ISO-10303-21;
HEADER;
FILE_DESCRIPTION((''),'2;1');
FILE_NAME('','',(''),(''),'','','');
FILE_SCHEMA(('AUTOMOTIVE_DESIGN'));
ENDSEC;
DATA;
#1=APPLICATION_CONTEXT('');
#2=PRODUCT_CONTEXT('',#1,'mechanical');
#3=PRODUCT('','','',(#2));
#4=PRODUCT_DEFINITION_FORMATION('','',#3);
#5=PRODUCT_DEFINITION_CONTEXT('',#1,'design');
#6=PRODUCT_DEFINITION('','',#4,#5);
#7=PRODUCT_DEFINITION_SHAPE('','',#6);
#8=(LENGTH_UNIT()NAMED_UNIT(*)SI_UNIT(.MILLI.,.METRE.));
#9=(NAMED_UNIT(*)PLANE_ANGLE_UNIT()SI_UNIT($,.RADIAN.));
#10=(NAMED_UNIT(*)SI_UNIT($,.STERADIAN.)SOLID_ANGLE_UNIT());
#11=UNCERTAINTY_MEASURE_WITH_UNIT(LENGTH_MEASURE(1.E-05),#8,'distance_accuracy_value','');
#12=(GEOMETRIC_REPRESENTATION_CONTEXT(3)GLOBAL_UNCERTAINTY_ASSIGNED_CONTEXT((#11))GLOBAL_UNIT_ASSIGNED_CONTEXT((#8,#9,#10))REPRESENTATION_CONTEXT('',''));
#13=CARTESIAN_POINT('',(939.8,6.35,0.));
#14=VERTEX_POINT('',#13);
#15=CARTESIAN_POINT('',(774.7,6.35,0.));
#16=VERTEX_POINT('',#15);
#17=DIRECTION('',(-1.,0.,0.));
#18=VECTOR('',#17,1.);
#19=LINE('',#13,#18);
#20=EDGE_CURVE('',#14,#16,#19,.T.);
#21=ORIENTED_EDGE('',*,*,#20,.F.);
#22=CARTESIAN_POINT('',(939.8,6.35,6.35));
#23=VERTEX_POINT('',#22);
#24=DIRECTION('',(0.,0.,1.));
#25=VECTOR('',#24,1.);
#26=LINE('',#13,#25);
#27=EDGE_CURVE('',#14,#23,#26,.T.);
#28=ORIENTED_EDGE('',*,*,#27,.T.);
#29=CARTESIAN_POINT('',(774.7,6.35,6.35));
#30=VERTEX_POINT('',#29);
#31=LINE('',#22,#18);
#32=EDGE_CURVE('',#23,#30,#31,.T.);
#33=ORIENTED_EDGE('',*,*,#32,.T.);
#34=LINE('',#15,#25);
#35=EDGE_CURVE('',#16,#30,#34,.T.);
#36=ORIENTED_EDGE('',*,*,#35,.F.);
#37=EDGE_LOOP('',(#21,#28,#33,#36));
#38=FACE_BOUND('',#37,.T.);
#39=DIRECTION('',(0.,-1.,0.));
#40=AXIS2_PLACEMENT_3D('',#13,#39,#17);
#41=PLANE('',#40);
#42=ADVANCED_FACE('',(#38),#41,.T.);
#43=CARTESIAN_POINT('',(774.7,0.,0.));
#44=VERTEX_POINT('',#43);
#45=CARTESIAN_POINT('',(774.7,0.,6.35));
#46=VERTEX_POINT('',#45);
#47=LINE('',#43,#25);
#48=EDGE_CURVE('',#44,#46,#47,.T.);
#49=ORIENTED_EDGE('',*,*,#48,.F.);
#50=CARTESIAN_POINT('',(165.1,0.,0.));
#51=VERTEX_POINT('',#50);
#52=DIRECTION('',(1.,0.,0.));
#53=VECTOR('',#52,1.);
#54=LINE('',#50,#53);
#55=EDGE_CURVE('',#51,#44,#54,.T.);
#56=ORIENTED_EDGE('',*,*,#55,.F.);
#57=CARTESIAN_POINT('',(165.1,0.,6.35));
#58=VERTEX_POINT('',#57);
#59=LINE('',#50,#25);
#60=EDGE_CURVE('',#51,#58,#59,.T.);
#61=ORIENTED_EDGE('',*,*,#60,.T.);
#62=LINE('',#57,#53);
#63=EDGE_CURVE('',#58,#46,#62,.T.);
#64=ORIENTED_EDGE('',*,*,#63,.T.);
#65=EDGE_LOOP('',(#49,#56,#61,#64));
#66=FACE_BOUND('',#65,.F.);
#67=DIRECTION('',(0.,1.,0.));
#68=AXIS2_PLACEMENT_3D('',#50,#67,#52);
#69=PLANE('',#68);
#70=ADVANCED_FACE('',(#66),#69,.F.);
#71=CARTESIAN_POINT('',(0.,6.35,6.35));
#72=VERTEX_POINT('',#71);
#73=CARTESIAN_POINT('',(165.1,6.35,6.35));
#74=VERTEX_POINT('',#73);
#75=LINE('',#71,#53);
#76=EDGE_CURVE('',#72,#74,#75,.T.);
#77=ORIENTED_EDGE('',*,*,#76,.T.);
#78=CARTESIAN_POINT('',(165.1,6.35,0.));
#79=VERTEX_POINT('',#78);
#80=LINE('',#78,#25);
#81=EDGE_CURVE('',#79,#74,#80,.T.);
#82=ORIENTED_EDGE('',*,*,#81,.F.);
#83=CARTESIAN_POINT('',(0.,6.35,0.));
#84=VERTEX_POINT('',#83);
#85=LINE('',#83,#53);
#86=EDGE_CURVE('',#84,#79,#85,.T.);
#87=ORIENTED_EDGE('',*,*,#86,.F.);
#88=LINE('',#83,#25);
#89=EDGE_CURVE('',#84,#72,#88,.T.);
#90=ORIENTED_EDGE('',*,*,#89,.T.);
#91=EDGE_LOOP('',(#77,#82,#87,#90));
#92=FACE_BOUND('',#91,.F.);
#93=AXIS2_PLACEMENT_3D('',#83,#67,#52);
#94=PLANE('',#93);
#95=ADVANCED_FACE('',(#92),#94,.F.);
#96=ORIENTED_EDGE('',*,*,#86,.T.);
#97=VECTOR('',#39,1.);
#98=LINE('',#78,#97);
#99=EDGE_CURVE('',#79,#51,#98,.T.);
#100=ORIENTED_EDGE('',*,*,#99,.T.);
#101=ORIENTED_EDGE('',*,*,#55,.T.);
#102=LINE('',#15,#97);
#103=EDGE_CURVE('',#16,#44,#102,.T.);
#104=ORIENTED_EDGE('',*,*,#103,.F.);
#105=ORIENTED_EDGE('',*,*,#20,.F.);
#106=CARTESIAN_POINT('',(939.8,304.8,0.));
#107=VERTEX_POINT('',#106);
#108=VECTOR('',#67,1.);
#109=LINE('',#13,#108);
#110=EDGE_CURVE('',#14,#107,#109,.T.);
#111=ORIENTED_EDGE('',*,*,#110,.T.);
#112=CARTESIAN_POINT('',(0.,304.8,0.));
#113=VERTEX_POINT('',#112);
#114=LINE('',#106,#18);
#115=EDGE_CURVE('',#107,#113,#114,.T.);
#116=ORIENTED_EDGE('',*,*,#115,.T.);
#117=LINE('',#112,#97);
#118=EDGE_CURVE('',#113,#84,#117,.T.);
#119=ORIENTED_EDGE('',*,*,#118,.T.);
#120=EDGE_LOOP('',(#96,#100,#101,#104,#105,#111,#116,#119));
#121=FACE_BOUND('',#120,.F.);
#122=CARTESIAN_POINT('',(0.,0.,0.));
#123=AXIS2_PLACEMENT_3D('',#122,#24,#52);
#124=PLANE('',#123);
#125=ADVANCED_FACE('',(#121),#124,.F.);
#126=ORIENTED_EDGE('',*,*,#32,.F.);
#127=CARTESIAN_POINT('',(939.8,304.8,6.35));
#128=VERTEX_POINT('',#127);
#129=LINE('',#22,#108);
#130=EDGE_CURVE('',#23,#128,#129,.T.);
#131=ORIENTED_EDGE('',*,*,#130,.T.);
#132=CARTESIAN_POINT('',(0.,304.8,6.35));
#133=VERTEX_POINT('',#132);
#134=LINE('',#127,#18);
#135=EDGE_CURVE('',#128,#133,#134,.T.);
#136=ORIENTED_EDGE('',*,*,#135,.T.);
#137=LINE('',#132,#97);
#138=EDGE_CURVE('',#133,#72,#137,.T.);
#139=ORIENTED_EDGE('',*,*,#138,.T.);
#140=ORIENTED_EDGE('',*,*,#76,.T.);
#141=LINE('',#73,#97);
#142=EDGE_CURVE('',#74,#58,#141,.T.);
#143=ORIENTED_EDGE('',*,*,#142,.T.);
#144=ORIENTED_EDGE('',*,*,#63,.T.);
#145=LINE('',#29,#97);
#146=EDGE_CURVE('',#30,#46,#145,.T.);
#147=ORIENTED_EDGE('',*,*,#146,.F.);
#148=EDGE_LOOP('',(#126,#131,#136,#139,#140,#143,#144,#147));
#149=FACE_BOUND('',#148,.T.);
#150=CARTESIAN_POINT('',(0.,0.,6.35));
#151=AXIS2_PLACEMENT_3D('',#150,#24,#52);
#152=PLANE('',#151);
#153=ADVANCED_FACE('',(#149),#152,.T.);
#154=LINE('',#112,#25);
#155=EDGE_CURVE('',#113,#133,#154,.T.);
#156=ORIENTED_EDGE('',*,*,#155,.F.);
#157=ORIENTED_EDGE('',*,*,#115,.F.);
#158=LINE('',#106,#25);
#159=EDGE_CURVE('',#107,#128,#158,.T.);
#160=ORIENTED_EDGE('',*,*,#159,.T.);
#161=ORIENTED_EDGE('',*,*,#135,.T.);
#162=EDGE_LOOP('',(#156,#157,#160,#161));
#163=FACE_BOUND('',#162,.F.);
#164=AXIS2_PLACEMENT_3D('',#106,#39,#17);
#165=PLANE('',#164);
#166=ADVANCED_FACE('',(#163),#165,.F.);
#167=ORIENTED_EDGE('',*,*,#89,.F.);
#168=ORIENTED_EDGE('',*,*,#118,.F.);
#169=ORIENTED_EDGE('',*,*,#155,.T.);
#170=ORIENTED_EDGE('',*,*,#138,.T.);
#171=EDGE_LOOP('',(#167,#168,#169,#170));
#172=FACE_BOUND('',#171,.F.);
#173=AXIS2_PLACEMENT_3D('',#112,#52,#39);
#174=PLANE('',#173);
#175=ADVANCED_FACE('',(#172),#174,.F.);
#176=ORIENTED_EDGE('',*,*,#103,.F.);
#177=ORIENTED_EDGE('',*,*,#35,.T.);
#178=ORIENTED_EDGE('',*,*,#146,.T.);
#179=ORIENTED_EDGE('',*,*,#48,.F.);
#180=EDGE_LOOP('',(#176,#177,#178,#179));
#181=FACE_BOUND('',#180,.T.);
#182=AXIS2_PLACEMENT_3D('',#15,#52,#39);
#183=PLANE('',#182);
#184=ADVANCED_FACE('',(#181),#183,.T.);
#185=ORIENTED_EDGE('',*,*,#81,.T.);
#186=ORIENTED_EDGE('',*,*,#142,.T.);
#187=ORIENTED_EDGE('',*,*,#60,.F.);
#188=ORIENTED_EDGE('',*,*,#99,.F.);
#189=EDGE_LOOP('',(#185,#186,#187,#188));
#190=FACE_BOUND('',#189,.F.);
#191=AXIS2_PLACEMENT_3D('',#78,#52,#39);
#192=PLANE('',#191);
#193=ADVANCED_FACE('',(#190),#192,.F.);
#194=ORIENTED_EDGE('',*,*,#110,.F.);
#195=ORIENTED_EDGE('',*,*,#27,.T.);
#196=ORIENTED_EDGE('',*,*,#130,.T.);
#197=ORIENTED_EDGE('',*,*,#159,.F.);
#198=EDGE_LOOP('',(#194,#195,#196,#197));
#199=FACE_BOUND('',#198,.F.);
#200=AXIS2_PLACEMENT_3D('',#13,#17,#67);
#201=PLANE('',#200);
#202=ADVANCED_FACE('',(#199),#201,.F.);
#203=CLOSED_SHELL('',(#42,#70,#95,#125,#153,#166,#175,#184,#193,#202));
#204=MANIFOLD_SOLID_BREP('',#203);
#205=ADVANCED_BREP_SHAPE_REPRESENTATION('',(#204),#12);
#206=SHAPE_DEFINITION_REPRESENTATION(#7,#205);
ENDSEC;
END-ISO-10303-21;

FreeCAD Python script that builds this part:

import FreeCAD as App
import Part
import Sketcher
Q = App.Units.Quantity

doc = App.newDocument("Part")
body = doc.addObject("PartDesign::Body", "Body")

sketch1 = body.newObject("Sketcher::SketchObject", "Sketch")
sketch1.AttachmentSupport = (doc.getObject("XY_Plane"), [""])
sketch1.MapMode = "FlatFace"
sketch1.addGeometry([
    Part.LineSegment(App.Vector(939.8, 6.35, 0), App.Vector(939.8, 304.8, 0)),
    Part.LineSegment(App.Vector(939.8, 304.8, 0), App.Vector(0, 304.8, 0)),
    Part.LineSegment(App.Vector(0, 304.8, 0), App.Vector(0, 6.35, 0)),
    Part.LineSegment(App.Vector(0, 6.35, 0), App.Vector(165.1, 6.35, 0)),
    Part.LineSegment(App.Vector(165.1, 6.35, 0), App.Vector(165.1, 0, 0)),
    Part.LineSegment(App.Vector(165.1, 0, 0), App.Vector(774.7, 0, 0)),
    Part.LineSegment(App.Vector(774.7, 0, 0), App.Vector(774.7, 6.35, 0)),
    Part.LineSegment(App.Vector(774.7, 6.35, 0), App.Vector(939.8, 6.35, 0)),
], False)
sketch1.addConstraint([
    Sketcher.Constraint("Coincident", 0, 2, 1, 1),
    Sketcher.Constraint("Coincident", 1, 2, 2, 1),
    Sketcher.Constraint("Coincident", 2, 2, 3, 1),
    Sketcher.Constraint("Coincident", 3, 2, 4, 1),
    Sketcher.Constraint("Coincident", 4, 2, 5, 1),
    Sketcher.Constraint("Coincident", 5, 2, 6, 1),
    Sketcher.Constraint("Coincident", 6, 2, 7, 1),
    Sketcher.Constraint("Coincident", 7, 2, 0, 1),
    Sketcher.Constraint("Vertical", 0),
    Sketcher.Constraint("Horizontal", 1),
    Sketcher.Constraint("Vertical", 2),
    Sketcher.Constraint("Horizontal", 3),
    Sketcher.Constraint("Vertical", 4),
    Sketcher.Constraint("Horizontal", 5),
    Sketcher.Constraint("Vertical", 6),
    Sketcher.Constraint("Horizontal", 7),
    Sketcher.Constraint("PointOnObject", 1, 2, -2),
    Sketcher.Constraint("PointOnObject", 4, 2, -1),
    Sketcher.Constraint("Horizontal", 3, 2, 6, 2),
    Sketcher.Constraint("Equal", 3, 7),
    Sketcher.Constraint("DistanceX", 1, 2, 1, 1, Q("37 in")),
    Sketcher.Constraint("DistanceX", 3, 1, 3, 2, Q("6.5 in")),
    Sketcher.Constraint("DistanceY", -1, 1, 0, 2, Q("12 in")),
    Sketcher.Constraint("DistanceY", 4, 2, 4, 1, Q("0.25 in")),
])
pad1 = body.newObject("PartDesign::Pad", "Pad")
pad1.Profile = sketch1
pad1.Length = Q("0.25 in")

doc.recompute()
